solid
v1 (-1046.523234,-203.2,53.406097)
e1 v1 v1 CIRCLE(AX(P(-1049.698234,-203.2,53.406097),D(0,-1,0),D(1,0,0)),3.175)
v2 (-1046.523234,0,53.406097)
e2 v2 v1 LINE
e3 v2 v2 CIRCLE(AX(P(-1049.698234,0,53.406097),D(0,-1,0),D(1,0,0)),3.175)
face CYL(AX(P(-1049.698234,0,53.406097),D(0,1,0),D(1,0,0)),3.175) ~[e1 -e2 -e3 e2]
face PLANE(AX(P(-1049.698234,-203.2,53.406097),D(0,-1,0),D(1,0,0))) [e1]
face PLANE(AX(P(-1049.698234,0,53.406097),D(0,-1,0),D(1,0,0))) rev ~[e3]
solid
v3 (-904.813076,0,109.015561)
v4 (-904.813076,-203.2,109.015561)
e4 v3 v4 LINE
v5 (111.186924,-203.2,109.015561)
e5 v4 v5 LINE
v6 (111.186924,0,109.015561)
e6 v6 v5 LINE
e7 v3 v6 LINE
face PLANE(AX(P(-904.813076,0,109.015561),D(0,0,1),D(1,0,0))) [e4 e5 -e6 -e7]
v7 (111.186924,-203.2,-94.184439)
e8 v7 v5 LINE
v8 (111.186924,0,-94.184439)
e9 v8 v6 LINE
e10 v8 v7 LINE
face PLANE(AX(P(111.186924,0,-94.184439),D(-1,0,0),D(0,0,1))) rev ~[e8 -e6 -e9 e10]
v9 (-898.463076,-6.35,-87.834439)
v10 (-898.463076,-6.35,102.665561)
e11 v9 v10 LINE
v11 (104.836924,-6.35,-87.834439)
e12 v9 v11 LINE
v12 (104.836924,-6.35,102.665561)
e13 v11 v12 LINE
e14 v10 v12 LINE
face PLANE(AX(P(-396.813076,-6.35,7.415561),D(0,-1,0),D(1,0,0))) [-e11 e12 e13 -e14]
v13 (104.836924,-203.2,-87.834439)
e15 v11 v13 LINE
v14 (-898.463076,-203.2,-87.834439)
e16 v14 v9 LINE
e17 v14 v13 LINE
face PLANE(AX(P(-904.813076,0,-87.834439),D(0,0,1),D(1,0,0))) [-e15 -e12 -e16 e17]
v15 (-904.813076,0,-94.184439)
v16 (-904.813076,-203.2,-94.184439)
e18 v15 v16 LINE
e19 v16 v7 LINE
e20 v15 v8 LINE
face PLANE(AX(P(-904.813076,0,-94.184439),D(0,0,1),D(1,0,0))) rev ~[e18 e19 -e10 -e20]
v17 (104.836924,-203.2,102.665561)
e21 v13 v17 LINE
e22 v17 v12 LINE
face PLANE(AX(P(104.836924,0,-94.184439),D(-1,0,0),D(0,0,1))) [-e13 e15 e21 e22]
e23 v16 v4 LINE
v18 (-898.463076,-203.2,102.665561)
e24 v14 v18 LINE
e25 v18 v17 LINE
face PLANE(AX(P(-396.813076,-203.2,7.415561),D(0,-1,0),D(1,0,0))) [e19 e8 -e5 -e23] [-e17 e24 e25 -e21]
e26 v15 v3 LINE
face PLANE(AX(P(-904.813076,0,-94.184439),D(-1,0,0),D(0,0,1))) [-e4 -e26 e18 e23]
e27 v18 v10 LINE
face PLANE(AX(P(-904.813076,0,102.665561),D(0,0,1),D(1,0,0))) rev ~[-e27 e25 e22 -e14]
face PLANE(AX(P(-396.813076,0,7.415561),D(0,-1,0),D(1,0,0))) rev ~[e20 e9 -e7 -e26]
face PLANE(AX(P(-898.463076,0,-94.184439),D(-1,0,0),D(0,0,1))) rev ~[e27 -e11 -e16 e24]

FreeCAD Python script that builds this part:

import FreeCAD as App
import Part
import Sketcher

V = App.Vector
Q = App.Units.Quantity


def faces_at(feature, points):
    """Names of the faces that lie closest to the given points."""
    faces = feature.Shape.Faces
    near = lambda p: min(range(len(faces)), key=lambda i: faces[i].distToShape(Part.Vertex(*p))[0])
    return sorted({f"Face{near(p) + 1}" for p in points})

doc = App.newDocument("Part")
body = doc.addObject("PartDesign::Body", "Body")

# Sketch on XZ plane
sketch1 = body.newObject("Sketcher::SketchObject", "Sketch")
sketch1.AttachmentSupport = (doc.getObject("XZ_Plane"), [""])
sketch1.MapMode = "FlatFace"
sketch1.addGeometry([
    Part.LineSegment(V(-904.813076, 109.015561, 0), V(-904.813076, -94.184439, 0)),
    Part.LineSegment(V(-904.813076, -94.184439, 0), V(111.186924, -94.184439, 0)),
    Part.LineSegment(V(111.186924, -94.184439, 0), V(111.186924, 109.015561, 0)),
    Part.LineSegment(V(111.186924, 109.015561, 0), V(-904.813076, 109.015561, 0)),
], False)
sketch1.addConstraint([
    Sketcher.Constraint("Coincident", 0, 2, 1, 1),
    Sketcher.Constraint("Coincident", 1, 2, 2, 1),
    Sketcher.Constraint("Coincident", 2, 2, 3, 1),
    Sketcher.Constraint("Coincident", 3, 2, 0, 1),
    Sketcher.Constraint("Vertical", 0),
    Sketcher.Constraint("Horizontal", 1),
    Sketcher.Constraint("Vertical", 2),
    Sketcher.Constraint("Horizontal", 3),
    Sketcher.Constraint("DistanceX", 1, 1, 1, 2, Q("40 in")),
    Sketcher.Constraint("DistanceY", 0, 2, 0, 1, Q("8 in")),
    Sketcher.Constraint("DistanceY", 0, 2, -1, 1, Q("94.184439 mm")),
    Sketcher.Constraint("DistanceX", 0, 2, -1, 1, Q("904.813076 mm")),
])
pad1 = body.newObject("PartDesign::Pad", "Pad")
pad1.Profile = sketch1
pad1.Length = Q("8 in")
doc.recompute()

thickness = body.newObject("PartDesign::Thickness", "Thickness")
thickness.Base = (pad1, faces_at(pad1, [(-396.813, -203.2, 7.416)]))
thickness.Value = Q("0.25 in")
thickness.Reversed = True
thickness.Join = "Arc"
body2 = doc.addObject("PartDesign::Body", "Body001")

# Sketch on XZ plane
sketch2 = body2.newObject("Sketcher::SketchObject", "Sketch001")
sketch2.AttachmentSupport = (doc.getObject("XZ_Plane001"), [""])
sketch2.MapMode = "FlatFace"
sketch2.addGeometry(Part.Circle(V(-1049.698234, 53.406097, 0), V(0, 0, 1), 3.175), False)
sketch2.addConstraint([
    Sketcher.Constraint("Diameter", 0, Q("0.25 in")),
    Sketcher.Constraint("DistanceX", 0, 3, -1, 1, Q("1049.698234 mm")),
    Sketcher.Constraint("DistanceY", -1, 1, 0, 3, Q("53.406097 mm")),
])
pad2 = body2.newObject("PartDesign::Pad", "Pad001")
pad2.Profile = sketch2
pad2.Length = Q("8 in")

doc.recompute()
